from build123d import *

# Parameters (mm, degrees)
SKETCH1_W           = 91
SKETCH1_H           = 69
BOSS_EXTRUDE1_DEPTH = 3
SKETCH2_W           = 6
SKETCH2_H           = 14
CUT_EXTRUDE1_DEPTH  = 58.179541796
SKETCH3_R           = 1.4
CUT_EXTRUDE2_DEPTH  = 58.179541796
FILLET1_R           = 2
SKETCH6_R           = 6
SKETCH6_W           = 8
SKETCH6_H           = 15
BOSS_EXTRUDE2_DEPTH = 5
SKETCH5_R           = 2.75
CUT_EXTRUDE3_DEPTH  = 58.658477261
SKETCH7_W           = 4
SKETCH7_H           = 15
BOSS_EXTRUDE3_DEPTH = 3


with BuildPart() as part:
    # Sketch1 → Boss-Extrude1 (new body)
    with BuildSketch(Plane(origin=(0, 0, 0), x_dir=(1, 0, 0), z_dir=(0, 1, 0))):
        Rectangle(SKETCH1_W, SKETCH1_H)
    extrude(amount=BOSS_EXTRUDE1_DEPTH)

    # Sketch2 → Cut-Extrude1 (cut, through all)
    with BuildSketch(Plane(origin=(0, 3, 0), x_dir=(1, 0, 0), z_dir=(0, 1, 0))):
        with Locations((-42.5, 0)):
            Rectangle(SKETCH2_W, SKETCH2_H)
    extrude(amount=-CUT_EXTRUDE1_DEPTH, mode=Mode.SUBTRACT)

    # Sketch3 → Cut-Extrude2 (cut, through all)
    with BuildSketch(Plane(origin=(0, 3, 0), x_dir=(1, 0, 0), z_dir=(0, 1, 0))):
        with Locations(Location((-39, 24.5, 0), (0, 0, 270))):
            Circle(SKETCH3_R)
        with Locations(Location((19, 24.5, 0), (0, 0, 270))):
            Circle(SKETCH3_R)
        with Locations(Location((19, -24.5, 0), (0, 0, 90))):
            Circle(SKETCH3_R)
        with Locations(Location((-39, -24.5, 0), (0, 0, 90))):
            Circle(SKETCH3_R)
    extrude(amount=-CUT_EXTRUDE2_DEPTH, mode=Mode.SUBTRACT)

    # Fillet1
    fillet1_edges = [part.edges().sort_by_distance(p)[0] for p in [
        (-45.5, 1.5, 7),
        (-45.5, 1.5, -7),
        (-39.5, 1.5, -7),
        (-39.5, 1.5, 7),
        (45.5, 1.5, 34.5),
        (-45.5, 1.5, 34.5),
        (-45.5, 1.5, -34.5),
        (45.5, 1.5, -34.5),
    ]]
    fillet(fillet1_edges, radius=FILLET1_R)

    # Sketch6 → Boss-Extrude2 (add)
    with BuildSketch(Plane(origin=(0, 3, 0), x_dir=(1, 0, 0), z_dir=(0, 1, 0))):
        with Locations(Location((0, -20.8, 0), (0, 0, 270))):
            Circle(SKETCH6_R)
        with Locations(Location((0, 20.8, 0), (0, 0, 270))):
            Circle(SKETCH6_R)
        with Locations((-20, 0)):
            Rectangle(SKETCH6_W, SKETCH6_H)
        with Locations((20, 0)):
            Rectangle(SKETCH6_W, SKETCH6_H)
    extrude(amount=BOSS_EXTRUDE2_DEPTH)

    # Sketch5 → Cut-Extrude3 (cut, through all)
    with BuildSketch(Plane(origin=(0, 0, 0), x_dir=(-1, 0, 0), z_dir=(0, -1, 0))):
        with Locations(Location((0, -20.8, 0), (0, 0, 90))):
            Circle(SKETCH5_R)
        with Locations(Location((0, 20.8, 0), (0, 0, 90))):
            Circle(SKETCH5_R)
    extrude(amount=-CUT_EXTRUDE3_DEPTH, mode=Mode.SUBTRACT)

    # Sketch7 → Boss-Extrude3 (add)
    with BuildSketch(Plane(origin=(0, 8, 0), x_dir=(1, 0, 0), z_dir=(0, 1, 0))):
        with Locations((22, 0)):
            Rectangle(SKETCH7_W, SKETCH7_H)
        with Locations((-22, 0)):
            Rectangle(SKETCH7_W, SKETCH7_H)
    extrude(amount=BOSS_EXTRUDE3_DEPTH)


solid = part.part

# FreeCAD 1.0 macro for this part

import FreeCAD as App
import Part
import Sketcher
from FreeCAD import Vector


def edges_at(feature, points):
    """Names of the edges that pass closest to the given points."""
    edges = feature.Shape.Edges
    near = lambda p: min(range(len(edges)), key=lambda i: edges[i].distToShape(Part.Vertex(*p))[0])
    return sorted({f"Edge{near(p) + 1}" for p in points})

doc = App.newDocument("Part")
params = doc.addObject("Spreadsheet::Sheet", "Params")
for row, (alias, value) in enumerate([
    ("sketch1_width", "91 mm"),
    ("sketch1_height", "69 mm"),
    ("pad1_length", "3 mm"),
    ("sketch2_width", "6 mm"),
    ("sketch2_height", "14 mm"),
    ("sketch3_diameter", "2.8 mm"),
    ("fillet_radius", "2 mm"),
    ("sketch4_diameter", "12 mm"),
    ("sketch4_width", "8 mm"),
    ("sketch4_height", "15 mm"),
    ("pad2_length", "5 mm"),
    ("sketch5_diameter", "5.5 mm"),
    ("sketch6_width", "4 mm"),
    ("sketch6_height", "15 mm"),
    ("pad3_length", "3 mm"),
], start=1):
    params.set(f"A{row}", alias)
    params.set(f"B{row}", "=" + value)
    params.setAlias(f"B{row}", alias)

body = doc.addObject("PartDesign::Body", "Body")

# Sketch on XZ plane
sketch1 = doc.addObject("Sketcher::SketchObject", "Sketch")
body.addObject(sketch1)
sketch1.AttachmentSupport = (doc.XZ_Plane, [""])
sketch1.MapMode = "FlatFace"
sketch1.addGeometry([
    Part.LineSegment(Vector(-45.5, -34.5, 0), Vector(-45.5, 34.5, 0)),
    Part.LineSegment(Vector(-45.5, 34.5, 0), Vector(45.5, 34.5, 0)),
    Part.LineSegment(Vector(45.5, 34.5, 0), Vector(45.5, -34.5, 0)),
    Part.LineSegment(Vector(45.5, -34.5, 0), Vector(-45.5, -34.5, 0)),
], False)
sketch1.addConstraint([
    Sketcher.Constraint("Coincident", 0, 2, 1, 1),
    Sketcher.Constraint("Coincident", 1, 2, 2, 1),
    Sketcher.Constraint("Coincident", 2, 2, 3, 1),
    Sketcher.Constraint("Coincident", 3, 2, 0, 1),
    Sketcher.Constraint("Vertical", 0),
    Sketcher.Constraint("Horizontal", 1),
    Sketcher.Constraint("Vertical", 2),
    Sketcher.Constraint("Horizontal", 3),
    Sketcher.Constraint("Symmetric", 0, 2, 2, 2, -1, 1),
    Sketcher.Constraint("DistanceX", 1, 1, 1, 2, 91.0),
    Sketcher.Constraint("DistanceY", 0, 1, 0, 2, 69.0),
])
sketch1.setExpression("Constraints[9]", "Params.sketch1_width")
sketch1.setExpression("Constraints[10]", "Params.sketch1_height")
pad1 = doc.addObject("PartDesign::Pad", "Pad")
body.addObject(pad1)
pad1.Profile = sketch1
pad1.setExpression("Length", "Params.pad1_length")
pad1.Reversed = True

# Sketch on XZ plane
sketch2 = doc.addObject("Sketcher::SketchObject", "Sketch001")
body.addObject(sketch2)
sketch2.AttachmentSupport = (doc.XZ_Plane, [""])
sketch2.MapMode = "FlatFace"
sketch2.AttachmentOffset = App.Placement(Vector(0, 0, -3), App.Rotation())
sketch2.addGeometry([
    Part.LineSegment(Vector(-45.5, -7, 0), Vector(-45.5, 7, 0)),
    Part.LineSegment(Vector(-45.5, 7, 0), Vector(-39.5, 7, 0)),
    Part.LineSegment(Vector(-39.5, 7, 0), Vector(-39.5, -7, 0)),
    Part.LineSegment(Vector(-39.5, -7, 0), Vector(-45.5, -7, 0)),
], False)
sketch2.addConstraint([
    Sketcher.Constraint("Coincident", 0, 2, 1, 1),
    Sketcher.Constraint("Coincident", 1, 2, 2, 1),
    Sketcher.Constraint("Coincident", 2, 2, 3, 1),
    Sketcher.Constraint("Coincident", 3, 2, 0, 1),
    Sketcher.Constraint("Vertical", 0),
    Sketcher.Constraint("Horizontal", 1),
    Sketcher.Constraint("Vertical", 2),
    Sketcher.Constraint("Horizontal", 3),
    Sketcher.Constraint("DistanceX", 1, 1, 1, 2, 6.0),
    Sketcher.Constraint("DistanceY", 0, 1, 0, 2, 14.0),
    Sketcher.Constraint("DistanceY", -1, 1, 0, 2, 7.0),
    Sketcher.Constraint("DistanceX", 0, 2, -1, 1, 45.5),
])
sketch2.setExpression("Constraints[8]", "Params.sketch2_width")
sketch2.setExpression("Constraints[9]", "Params.sketch2_height")
pocket1 = doc.addObject("PartDesign::Pocket", "Pocket")
body.addObject(pocket1)
pocket1.Profile = sketch2
pocket1.Type = "ThroughAll"
pocket1.Reversed = True

# Sketch on XZ plane
sketch3 = doc.addObject("Sketcher::SketchObject", "Sketch002")
body.addObject(sketch3)
sketch3.AttachmentSupport = (doc.XZ_Plane, [""])
sketch3.MapMode = "FlatFace"
sketch3.AttachmentOffset = App.Placement(Vector(0, 0, -3), App.Rotation())
sketch3.addGeometry([
    Part.Circle(Vector(-39, -24.5, 0), Vector(0, 0, 1), 1.4),
    Part.Circle(Vector(19, -24.5, 0), Vector(0, 0, 1), 1.4),
    Part.Circle(Vector(19, 24.5, 0), Vector(0, 0, 1), 1.4),
    Part.Circle(Vector(-39, 24.5, 0), Vector(0, 0, 1), 1.4),
], False)
sketch3.addConstraint([
    Sketcher.Constraint("Equal", 0, 1),
    Sketcher.Constraint("Equal", 1, 2),
    Sketcher.Constraint("Equal", 2, 3),
    Sketcher.Constraint("Symmetric", 1, 3, 2, 3, -1),
    Sketcher.Constraint("Symmetric", 0, 3, 3, 3, -1),
    Sketcher.Constraint("Horizontal", 0, 3, 1, 3),
    Sketcher.Constraint("Diameter", 0, 2.8),
    Sketcher.Constraint("DistanceX", 0, 3, -1, 1, 39.0),
    Sketcher.Constraint("DistanceX", -1, 1, 1, 3, 19.0),
    Sketcher.Constraint("DistanceY", 1, 3, 2, 3, 49.0),
])
sketch3.setExpression("Constraints[6]", "Params.sketch3_diameter")
pocket2 = doc.addObject("PartDesign::Pocket", "Pocket001")
body.addObject(pocket2)
pocket2.Profile = sketch3
pocket2.Type = "ThroughAll"
pocket2.Reversed = True
doc.recompute()

fillet = doc.addObject("PartDesign::Fillet", "Fillet")
body.addObject(fillet)
fillet.Base = (pocket2, edges_at(pocket2, [
    (-45.5, 1.5, 7),
    (-45.5, 1.5, -7),
    (-39.5, 1.5, -7),
    (-39.5, 1.5, 7),
    (45.5, 1.5, 34.5),
    (-45.5, 1.5, 34.5),
    (-45.5, 1.5, -34.5),
    (45.5, 1.5, -34.5),
]))
fillet.setExpression("Radius", "Params.fillet_radius")

# Sketch on XZ plane
sketch4 = doc.addObject("Sketcher::SketchObject", "Sketch003")
body.addObject(sketch4)
sketch4.AttachmentSupport = (doc.XZ_Plane, [""])
sketch4.MapMode = "FlatFace"
sketch4.AttachmentOffset = App.Placement(Vector(0, 0, -3), App.Rotation())
sketch4.addGeometry([
    Part.Circle(Vector(0, 20.8, 0), Vector(0, 0, 1), 6),  # 0
    Part.Circle(Vector(0, -20.8, 0), Vector(0, 0, 1), 6),  # 1
    Part.LineSegment(Vector(-24, -7.5, 0), Vector(-24, 7.5, 0)),  # 2
    Part.LineSegment(Vector(-24, 7.5, 0), Vector(-16, 7.5, 0)),  # 3
    Part.LineSegment(Vector(-16, 7.5, 0), Vector(-16, -7.5, 0)),  # 4
    Part.LineSegment(Vector(-16, -7.5, 0), Vector(-24, -7.5, 0)),  # 5
    Part.LineSegment(Vector(16, -7.5, 0), Vector(16, 7.5, 0)),  # 6
    Part.LineSegment(Vector(16, 7.5, 0), Vector(24, 7.5, 0)),  # 7
    Part.LineSegment(Vector(24, 7.5, 0), Vector(24, -7.5, 0)),  # 8
    Part.LineSegment(Vector(24, -7.5, 0), Vector(16, -7.5, 0)),  # 9
], False)
sketch4.addConstraint([
    Sketcher.Constraint("Coincident", 2, 2, 3, 1),
    Sketcher.Constraint("Coincident", 3, 2, 4, 1),
    Sketcher.Constraint("Coincident", 4, 2, 5, 1),
    Sketcher.Constraint("Coincident", 5, 2, 2, 1),
    Sketcher.Constraint("Coincident", 6, 2, 7, 1),
    Sketcher.Constraint("Coincident", 7, 2, 8, 1),
    Sketcher.Constraint("Coincident", 8, 2, 9, 1),
    Sketcher.Constraint("Coincident", 9, 2, 6, 1),
    Sketcher.Constraint("Vertical", 2),
    Sketcher.Constraint("Horizontal", 3),
    Sketcher.Constraint("Vertical", 4),
    Sketcher.Constraint("Horizontal", 5),
    Sketcher.Constraint("Vertical", 6),
    Sketcher.Constraint("Horizontal", 7),
    Sketcher.Constraint("Vertical", 8),
    Sketcher.Constraint("Horizontal", 9),
    Sketcher.Constraint("Equal", 0, 1),
    Sketcher.Constraint("Symmetric", 0, 3, 1, 3, -1, 1),
    Sketcher.Constraint("Symmetric", 4, 2, 6, 2, -1, 1),
    Sketcher.Constraint("Symmetric", 2, 2, 8, 2, -1, 1),
    Sketcher.Constraint("PointOnObject", 0, 3, -2),
    Sketcher.Constraint("Horizontal", 3, 2, 6, 2),
    Sketcher.Constraint("Diameter", 0, 12.0),
    Sketcher.Constraint("DistanceX", 3, 1, 3, 2, 8.0),
    Sketcher.Constraint("DistanceY", 2, 1, 2, 2, 15.0),
    Sketcher.Constraint("DistanceX", 2, 2, -1, 1, 24.0),
    Sketcher.Constraint("DistanceY", -1, 1, 0, 3, 20.8),
])
sketch4.setExpression("Constraints[22]", "Params.sketch4_diameter")
sketch4.setExpression("Constraints[23]", "Params.sketch4_width")
sketch4.setExpression("Constraints[24]", "Params.sketch4_height")
pad2 = doc.addObject("PartDesign::Pad", "Pad001")
body.addObject(pad2)
pad2.Profile = sketch4
pad2.setExpression("Length", "Params.pad2_length")
pad2.Reversed = True

# Sketch on XZ plane
sketch5 = doc.addObject("Sketcher::SketchObject", "Sketch004")
body.addObject(sketch5)
sketch5.AttachmentSupport = (doc.XZ_Plane, [""])
sketch5.MapMode = "FlatFace"
sketch5.addGeometry([
    Part.Circle(Vector(0, 20.8, 0), Vector(0, 0, 1), 2.75),
    Part.Circle(Vector(0, -20.8, 0), Vector(0, 0, 1), 2.75),
], False)
sketch5.addConstraint([
    Sketcher.Constraint("Equal", 0, 1),
    Sketcher.Constraint("Symmetric", 0, 3, 1, 3, -1, 1),
    Sketcher.Constraint("PointOnObject", 0, 3, -2),
    Sketcher.Constraint("Diameter", 0, 5.5),
    Sketcher.Constraint("DistanceY", -1, 1, 0, 3, 20.8),
])
sketch5.setExpression("Constraints[3]", "Params.sketch5_diameter")
pocket3 = doc.addObject("PartDesign::Pocket", "Pocket002")
body.addObject(pocket3)
pocket3.Profile = sketch5
pocket3.Type = "ThroughAll"

# Sketch on XZ plane
sketch6 = doc.addObject("Sketcher::SketchObject", "Sketch005")
body.addObject(sketch6)
sketch6.AttachmentSupport = (doc.XZ_Plane, [""])
sketch6.MapMode = "FlatFace"
sketch6.AttachmentOffset = App.Placement(Vector(0, 0, -8), App.Rotation())
sketch6.addGeometry([
    Part.LineSegment(Vector(20, -7.5, 0), Vector(20, 7.5, 0)),  # 0
    Part.LineSegment(Vector(20, 7.5, 0), Vector(24, 7.5, 0)),  # 1
    Part.LineSegment(Vector(24, 7.5, 0), Vector(24, -7.5, 0)),  # 2
    Part.LineSegment(Vector(24, -7.5, 0), Vector(20, -7.5, 0)),  # 3
    Part.LineSegment(Vector(-24, -7.5, 0), Vector(-24, 7.5, 0)),  # 4
    Part.LineSegment(Vector(-24, 7.5, 0), Vector(-20, 7.5, 0)),  # 5
    Part.LineSegment(Vector(-20, 7.5, 0), Vector(-20, -7.5, 0)),  # 6
    Part.LineSegment(Vector(-20, -7.5, 0), Vector(-24, -7.5, 0)),  # 7
], False)
sketch6.addConstraint([
    Sketcher.Constraint("Coincident", 0, 2, 1, 1),
    Sketcher.Constraint("Coincident", 1, 2, 2, 1),
    Sketcher.Constraint("Coincident", 2, 2, 3, 1),
    Sketcher.Constraint("Coincident", 3, 2, 0, 1),
    Sketcher.Constraint("Coincident", 4, 2, 5, 1),
    Sketcher.Constraint("Coincident", 5, 2, 6, 1),
    Sketcher.Constraint("Coincident", 6, 2, 7, 1),
    Sketcher.Constraint("Coincident", 7, 2, 4, 1),
    Sketcher.Constraint("Vertical", 0),
    Sketcher.Constraint("Horizontal", 1),
    Sketcher.Constraint("Vertical", 2),
    Sketcher.Constraint("Horizontal", 3),
    Sketcher.Constraint("Vertical", 4),
    Sketcher.Constraint("Horizontal", 5),
    Sketcher.Constraint("Vertical", 6),
    Sketcher.Constraint("Horizontal", 7),
    Sketcher.Constraint("Symmetric", 2, 2, 4, 2, -1, 1),
    Sketcher.Constraint("Symmetric", 0, 2, 6, 2, -1, 1),
    Sketcher.Constraint("Horizontal", 1, 2, 4, 2),
    Sketcher.Constraint("DistanceX", 1, 1, 1, 2, 4.0),
    Sketcher.Constraint("DistanceY", 0, 1, 0, 2, 15.0),
    Sketcher.Constraint("DistanceX", -1, 1, 0, 2, 20.0),
])
sketch6.setExpression("Constraints[19]", "Params.sketch6_width")
sketch6.setExpression("Constraints[20]", "Params.sketch6_height")
pad3 = doc.addObject("PartDesign::Pad", "Pad002")
body.addObject(pad3)
pad3.Profile = sketch6
pad3.setExpression("Length", "Params.pad3_length")
pad3.Reversed = True

doc.recompute()
